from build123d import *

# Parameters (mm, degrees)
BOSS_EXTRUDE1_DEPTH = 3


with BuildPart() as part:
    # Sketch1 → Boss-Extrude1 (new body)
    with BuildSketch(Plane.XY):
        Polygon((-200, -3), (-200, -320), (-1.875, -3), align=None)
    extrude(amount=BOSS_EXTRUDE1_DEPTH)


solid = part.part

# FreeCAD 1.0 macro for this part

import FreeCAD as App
import Part
import Sketcher


def add_polygon(sketch, points):
    """Adds a closed chain of lines whose ends are joined by coincident constraints."""
    first, n = sketch.GeometryCount, len(points)
    for a, b in zip(points, points[1:] + points[:1]):
        sketch.addGeometry(Part.LineSegment(App.Vector(*a, 0), App.Vector(*b, 0)), False)
    for i in range(n):
        sketch.addConstraint(Sketcher.Constraint("Coincident", first + i, 2, first + (i + 1) % n, 1))

doc = App.newDocument("Part")
body = doc.addObject("PartDesign::Body", "Body")

sketch1 = body.newObject("Sketcher::SketchObject", "Sketch")
sketch1.AttachmentSupport = (doc.getObject("XY_Plane"), [""])
sketch1.MapMode = "FlatFace"
add_polygon(sketch1, [(-200, -3), (-200, -320), (-2, -3)])
sketch1.addConstraint([
    Sketcher.Constraint("Vertical", 0),
    Sketcher.Constraint("Horizontal", 2),
    Sketcher.Constraint("DistanceY", 0, 2, 0, 1, 317.0),
    Sketcher.Constraint("DistanceX", 0, 2, -1, 1, 200.0),
    Sketcher.Constraint("DistanceY", 0, 2, -1, 1, 320.0),
    Sketcher.Constraint("DistanceX", 2, 2, 2, 1, 198.125),
])
pad1 = body.newObject("PartDesign::Pad", "Pad")
pad1.Profile = sketch1
pad1.Length = 3

doc.recompute()
